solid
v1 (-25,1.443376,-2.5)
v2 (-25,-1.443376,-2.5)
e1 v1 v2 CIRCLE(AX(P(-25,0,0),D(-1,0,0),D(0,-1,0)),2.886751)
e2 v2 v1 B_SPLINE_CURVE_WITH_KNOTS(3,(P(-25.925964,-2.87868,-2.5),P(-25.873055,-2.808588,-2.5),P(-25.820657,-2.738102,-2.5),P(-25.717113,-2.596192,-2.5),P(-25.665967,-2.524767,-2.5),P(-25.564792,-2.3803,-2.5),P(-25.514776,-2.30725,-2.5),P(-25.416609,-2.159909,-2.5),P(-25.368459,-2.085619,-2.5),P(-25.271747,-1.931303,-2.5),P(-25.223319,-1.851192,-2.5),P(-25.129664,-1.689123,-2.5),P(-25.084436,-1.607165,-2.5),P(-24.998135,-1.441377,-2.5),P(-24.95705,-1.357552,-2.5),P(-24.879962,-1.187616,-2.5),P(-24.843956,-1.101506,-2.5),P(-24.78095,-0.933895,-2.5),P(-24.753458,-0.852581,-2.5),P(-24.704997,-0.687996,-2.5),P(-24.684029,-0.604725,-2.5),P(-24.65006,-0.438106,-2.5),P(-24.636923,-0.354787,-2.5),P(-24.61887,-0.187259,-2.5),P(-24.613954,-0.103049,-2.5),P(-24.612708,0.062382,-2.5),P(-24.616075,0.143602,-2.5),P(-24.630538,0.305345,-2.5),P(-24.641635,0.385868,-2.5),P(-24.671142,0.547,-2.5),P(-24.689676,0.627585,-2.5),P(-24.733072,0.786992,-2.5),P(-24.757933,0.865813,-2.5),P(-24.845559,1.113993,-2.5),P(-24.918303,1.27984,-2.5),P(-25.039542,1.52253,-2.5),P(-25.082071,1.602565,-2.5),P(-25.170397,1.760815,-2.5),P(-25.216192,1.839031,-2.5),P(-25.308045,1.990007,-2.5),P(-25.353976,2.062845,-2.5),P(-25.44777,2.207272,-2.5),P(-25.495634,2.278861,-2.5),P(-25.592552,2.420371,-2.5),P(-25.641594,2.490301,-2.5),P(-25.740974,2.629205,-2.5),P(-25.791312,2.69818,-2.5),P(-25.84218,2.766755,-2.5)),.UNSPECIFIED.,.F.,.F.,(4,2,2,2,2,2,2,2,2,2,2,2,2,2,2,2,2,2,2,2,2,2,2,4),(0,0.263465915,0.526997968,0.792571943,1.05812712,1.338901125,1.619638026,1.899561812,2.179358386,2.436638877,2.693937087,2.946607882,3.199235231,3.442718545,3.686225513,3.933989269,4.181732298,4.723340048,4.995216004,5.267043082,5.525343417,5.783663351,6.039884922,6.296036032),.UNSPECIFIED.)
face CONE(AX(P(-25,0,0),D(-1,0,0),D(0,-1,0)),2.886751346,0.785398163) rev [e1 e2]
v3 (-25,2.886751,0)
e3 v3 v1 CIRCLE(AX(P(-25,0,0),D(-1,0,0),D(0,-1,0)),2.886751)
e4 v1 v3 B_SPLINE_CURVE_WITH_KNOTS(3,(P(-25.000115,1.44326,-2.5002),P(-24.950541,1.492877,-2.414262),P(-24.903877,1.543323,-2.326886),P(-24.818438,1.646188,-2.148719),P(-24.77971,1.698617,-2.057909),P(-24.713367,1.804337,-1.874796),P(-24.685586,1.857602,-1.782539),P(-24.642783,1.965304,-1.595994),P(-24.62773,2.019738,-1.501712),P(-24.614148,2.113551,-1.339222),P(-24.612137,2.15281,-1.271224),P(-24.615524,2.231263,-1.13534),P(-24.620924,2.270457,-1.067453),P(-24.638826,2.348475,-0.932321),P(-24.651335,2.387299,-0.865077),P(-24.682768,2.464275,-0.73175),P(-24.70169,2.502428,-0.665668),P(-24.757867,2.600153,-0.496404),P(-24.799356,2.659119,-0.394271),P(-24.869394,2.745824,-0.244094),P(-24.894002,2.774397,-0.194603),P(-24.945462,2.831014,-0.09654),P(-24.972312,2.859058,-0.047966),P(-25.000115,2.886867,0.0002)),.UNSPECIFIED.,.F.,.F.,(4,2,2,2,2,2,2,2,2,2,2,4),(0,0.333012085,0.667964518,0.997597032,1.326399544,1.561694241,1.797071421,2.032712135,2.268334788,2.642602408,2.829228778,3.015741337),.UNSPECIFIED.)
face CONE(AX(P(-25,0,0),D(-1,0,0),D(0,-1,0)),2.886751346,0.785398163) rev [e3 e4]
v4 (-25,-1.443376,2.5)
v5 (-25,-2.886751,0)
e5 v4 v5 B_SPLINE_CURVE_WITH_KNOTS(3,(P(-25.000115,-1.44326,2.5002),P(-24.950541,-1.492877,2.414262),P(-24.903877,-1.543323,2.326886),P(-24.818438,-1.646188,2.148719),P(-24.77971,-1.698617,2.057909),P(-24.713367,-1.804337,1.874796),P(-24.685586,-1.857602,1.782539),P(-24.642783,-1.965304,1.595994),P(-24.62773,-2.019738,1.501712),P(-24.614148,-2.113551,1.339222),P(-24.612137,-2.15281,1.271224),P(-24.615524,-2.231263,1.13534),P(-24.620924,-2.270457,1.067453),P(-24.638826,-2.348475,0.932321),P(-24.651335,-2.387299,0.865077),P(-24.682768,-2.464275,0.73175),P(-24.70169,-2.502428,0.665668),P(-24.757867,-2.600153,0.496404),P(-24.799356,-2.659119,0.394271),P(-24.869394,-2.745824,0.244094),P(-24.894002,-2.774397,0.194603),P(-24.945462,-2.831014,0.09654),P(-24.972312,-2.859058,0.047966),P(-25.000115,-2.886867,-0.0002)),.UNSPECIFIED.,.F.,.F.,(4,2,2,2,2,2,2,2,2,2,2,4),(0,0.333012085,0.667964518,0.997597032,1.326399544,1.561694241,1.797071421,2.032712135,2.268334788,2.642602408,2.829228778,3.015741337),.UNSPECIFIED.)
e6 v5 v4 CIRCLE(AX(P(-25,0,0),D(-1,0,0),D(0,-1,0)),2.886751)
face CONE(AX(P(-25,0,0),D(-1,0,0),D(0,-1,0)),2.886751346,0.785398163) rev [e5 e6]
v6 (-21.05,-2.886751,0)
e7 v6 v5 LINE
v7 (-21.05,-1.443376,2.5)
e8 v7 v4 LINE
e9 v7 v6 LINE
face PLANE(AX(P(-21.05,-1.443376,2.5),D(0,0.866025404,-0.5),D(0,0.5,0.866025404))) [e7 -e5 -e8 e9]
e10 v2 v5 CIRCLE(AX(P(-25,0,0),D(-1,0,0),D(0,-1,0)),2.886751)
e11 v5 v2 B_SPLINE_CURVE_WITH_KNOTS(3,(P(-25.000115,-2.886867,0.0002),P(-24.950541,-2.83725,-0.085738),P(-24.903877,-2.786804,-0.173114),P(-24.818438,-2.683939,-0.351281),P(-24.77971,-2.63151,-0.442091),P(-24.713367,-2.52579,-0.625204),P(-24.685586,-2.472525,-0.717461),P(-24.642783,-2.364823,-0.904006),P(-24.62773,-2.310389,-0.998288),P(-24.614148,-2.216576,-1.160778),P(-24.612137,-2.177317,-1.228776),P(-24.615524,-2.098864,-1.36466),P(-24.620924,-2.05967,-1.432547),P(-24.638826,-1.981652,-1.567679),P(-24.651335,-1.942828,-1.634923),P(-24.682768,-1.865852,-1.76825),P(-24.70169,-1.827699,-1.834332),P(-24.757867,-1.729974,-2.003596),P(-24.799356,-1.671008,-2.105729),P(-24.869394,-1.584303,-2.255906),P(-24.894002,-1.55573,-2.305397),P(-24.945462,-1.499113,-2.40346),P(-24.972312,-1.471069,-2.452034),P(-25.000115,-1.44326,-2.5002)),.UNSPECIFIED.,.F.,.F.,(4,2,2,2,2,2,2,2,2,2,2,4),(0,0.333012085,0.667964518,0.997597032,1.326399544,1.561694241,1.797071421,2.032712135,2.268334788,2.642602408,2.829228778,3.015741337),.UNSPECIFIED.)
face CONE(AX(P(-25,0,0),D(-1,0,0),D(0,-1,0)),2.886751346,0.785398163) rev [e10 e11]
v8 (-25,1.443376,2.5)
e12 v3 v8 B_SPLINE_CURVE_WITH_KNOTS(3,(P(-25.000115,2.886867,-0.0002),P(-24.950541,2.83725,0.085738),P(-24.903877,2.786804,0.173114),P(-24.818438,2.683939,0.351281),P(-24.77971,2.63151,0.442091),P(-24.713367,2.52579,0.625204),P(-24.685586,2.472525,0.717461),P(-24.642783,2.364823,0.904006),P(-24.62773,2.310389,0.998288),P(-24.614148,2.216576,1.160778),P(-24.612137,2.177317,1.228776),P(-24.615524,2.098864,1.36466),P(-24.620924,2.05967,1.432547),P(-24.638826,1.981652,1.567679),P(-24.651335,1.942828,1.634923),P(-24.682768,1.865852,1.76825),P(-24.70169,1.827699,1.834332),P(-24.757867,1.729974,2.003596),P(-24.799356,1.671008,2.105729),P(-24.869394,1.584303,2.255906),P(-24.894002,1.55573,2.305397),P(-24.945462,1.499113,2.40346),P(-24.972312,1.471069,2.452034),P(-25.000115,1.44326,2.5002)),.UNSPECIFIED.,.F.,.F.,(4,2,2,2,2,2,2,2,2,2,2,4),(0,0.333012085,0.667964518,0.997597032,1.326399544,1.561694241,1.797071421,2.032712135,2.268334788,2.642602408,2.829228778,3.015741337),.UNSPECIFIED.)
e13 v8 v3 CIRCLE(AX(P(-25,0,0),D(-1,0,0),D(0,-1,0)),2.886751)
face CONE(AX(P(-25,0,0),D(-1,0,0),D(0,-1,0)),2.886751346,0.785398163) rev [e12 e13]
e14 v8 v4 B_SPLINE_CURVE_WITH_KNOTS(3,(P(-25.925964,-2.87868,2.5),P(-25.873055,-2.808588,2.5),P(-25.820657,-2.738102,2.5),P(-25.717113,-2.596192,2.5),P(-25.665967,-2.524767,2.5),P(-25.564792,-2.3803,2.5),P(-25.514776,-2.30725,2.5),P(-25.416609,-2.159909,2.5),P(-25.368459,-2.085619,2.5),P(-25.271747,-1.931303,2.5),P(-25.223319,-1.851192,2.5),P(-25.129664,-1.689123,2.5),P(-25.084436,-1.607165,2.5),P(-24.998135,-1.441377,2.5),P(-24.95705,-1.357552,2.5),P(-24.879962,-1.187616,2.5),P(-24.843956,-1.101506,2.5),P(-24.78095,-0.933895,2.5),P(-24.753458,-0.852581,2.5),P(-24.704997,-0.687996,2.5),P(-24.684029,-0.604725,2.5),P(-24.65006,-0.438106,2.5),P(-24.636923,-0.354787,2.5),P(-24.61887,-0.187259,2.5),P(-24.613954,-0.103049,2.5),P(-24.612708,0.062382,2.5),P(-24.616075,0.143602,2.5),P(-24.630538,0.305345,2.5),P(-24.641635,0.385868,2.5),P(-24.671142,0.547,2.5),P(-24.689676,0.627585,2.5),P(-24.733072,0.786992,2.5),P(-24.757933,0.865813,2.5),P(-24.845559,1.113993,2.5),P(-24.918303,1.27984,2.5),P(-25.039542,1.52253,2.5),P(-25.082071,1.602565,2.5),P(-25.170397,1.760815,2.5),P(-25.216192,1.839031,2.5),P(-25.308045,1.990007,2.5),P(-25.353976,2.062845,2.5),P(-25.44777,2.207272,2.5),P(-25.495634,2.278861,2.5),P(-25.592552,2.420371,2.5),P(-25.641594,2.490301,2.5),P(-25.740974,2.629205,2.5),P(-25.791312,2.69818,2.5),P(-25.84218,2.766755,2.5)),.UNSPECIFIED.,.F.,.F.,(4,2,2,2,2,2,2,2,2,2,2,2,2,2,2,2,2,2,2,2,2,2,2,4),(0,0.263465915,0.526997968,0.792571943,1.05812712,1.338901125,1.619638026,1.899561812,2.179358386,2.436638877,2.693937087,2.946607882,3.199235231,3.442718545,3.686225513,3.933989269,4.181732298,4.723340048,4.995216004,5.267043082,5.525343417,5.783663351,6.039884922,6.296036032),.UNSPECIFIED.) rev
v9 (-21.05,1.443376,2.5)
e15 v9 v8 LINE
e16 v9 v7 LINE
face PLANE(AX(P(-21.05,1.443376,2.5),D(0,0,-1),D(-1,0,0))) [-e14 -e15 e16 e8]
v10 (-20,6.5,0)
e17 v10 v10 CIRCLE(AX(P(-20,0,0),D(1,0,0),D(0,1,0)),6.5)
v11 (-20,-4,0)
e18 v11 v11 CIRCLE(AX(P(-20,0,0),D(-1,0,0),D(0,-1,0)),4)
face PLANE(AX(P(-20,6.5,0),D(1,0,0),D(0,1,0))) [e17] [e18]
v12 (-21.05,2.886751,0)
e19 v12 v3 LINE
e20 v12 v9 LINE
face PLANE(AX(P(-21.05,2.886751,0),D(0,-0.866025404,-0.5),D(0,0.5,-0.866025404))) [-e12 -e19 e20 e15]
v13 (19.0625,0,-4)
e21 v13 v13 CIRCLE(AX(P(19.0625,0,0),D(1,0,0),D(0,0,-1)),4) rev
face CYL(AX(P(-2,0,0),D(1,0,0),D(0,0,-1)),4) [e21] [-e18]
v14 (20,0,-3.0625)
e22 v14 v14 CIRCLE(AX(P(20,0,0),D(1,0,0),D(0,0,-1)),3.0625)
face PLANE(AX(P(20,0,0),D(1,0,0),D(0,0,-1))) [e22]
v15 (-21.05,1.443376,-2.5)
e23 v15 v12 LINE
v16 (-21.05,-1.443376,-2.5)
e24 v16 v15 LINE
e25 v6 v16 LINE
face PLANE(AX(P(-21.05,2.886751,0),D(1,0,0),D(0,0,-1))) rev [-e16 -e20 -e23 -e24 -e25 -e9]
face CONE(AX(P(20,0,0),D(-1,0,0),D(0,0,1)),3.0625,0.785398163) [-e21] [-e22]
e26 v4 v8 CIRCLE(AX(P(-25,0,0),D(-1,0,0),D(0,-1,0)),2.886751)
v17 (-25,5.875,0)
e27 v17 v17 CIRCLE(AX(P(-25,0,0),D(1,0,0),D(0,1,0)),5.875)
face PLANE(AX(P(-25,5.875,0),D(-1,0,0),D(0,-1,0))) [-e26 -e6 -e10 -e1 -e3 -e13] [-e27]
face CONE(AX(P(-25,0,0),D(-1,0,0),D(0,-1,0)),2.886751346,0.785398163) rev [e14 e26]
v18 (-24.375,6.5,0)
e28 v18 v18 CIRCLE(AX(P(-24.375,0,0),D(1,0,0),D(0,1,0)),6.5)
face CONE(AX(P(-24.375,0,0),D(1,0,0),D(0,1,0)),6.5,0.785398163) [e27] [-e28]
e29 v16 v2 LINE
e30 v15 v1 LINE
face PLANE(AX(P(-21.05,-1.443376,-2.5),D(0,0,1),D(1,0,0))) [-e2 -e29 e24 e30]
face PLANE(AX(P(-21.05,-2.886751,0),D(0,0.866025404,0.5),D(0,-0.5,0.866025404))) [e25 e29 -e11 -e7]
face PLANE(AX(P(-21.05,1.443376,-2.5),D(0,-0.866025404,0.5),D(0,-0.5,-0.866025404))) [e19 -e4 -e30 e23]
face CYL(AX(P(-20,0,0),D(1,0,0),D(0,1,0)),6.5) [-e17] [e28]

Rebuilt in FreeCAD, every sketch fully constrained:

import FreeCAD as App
import Part
import Sketcher
from FreeCAD import Vector
Q = App.Units.Quantity


def edges_at(feature, points):
    """Names of the edges that pass closest to the given points."""
    edges = feature.Shape.Edges
    near = lambda p: min(range(len(edges)), key=lambda i: edges[i].distToShape(Part.Vertex(*p))[0])
    return sorted({f"Edge{near(p) + 1}" for p in points})


def add_polygon(sketch, points):
    """Adds a closed chain of lines whose ends are joined by coincident constraints."""
    first, n = sketch.GeometryCount, len(points)
    for a, b in zip(points, points[1:] + points[:1]):
        sketch.addGeometry(Part.LineSegment(App.Vector(*a, 0), App.Vector(*b, 0)), False)
    for i in range(n):
        sketch.addConstraint(Sketcher.Constraint("Coincident", first + i, 2, first + (i + 1) % n, 1))

doc = App.newDocument("Part")
params = doc.addObject("Spreadsheet::Sheet", "Params")
for row, (alias, value) in enumerate([
    ("sketch1_diameter", "8 mm"),
    ("pad1_length", "22 mm"),
    ("chamfer_size", "0.9375 mm"),
    ("sketch2_width", "18 mm"),
    ("sketch2_height", "4 mm"),
    ("revolution_angle", "360 deg"),
    ("sketch3_width", "5 mm"),
    ("sketch3_height", "6.5 mm"),
    ("revolution2_angle", "360 deg"),
    ("pocket1_length", "3.95 mm"),
    ("groove_angle", "360 deg"),
], start=1):
    params.set(f"A{row}", alias)
    params.set(f"B{row}", "=" + value)
    params.setAlias(f"B{row}", alias)

body = doc.addObject("PartDesign::Body", "Body")

# Sketch on YZ plane
sketch1 = doc.addObject("Sketcher::SketchObject", "Sketch")
body.addObject(sketch1)
sketch1.AttachmentSupport = (doc.YZ_Plane, [""])
sketch1.MapMode = "FlatFace"
sketch1.AttachmentOffset = App.Placement(Vector(0, 0, 20), App.Rotation())
sketch1.addGeometry(Part.Circle(Vector(0, 0, 0), Vector(0, 0, 1), 4), False)
sketch1.addConstraint([
    Sketcher.Constraint("Coincident", 0, 3, -1, 1),
    Sketcher.Constraint("Diameter", 0, Q("8 mm")),
])
sketch1.setExpression("Constraints[1]", "Params.sketch1_diameter")
pad1 = doc.addObject("PartDesign::Pad", "Pad")
body.addObject(pad1)
pad1.Profile = sketch1
pad1.setExpression("Length", "Params.pad1_length")
pad1.Reversed = True
doc.recompute()

chamfer = doc.addObject("PartDesign::Chamfer", "Chamfer")
body.addObject(chamfer)
chamfer.Base = (pad1, edges_at(pad1, [(20, 0, 4)]))
chamfer.setExpression("Size", "Params.chamfer_size")

# Sketch on XY plane
sketch2 = doc.addObject("Sketcher::SketchObject", "Sketch001")
body.addObject(sketch2)
sketch2.AttachmentSupport = (doc.XY_Plane, [""])
sketch2.MapMode = "FlatFace"
add_polygon(sketch2, [(0.3, 0), (-2, 4), (-20, 4), (-20, 0)])  # lines 0-3
sketch2.addConstraint([
    Sketcher.Constraint("Horizontal", 1),
    Sketcher.Constraint("Vertical", 2),
    Sketcher.Constraint("Horizontal", 3),
    Sketcher.Constraint("PointOnObject", 2, 2, -1),
    Sketcher.Constraint("DistanceX", 1, 2, 1, 1, Q("18 mm")),
    Sketcher.Constraint("DistanceY", 2, 2, 2, 1, Q("4 mm")),
    Sketcher.Constraint("Angle", 0, Q("120 deg")),
    Sketcher.Constraint("DistanceX", 0, 2, -1, 1, Q("2 mm")),
])
sketch2.setExpression("Constraints[8]", "Params.sketch2_width")
sketch2.setExpression("Constraints[9]", "Params.sketch2_height")
revolution = doc.addObject("PartDesign::Revolution", "Revolution")
body.addObject(revolution)
revolution.Profile = sketch2
revolution.ReferenceAxis = (sketch2, ["H_Axis"])
revolution.setExpression("Angle", "Params.revolution_angle")

# Sketch on XY plane
sketch3 = doc.addObject("Sketcher::SketchObject", "Sketch002")
body.addObject(sketch3)
sketch3.AttachmentSupport = (doc.XY_Plane, [""])
sketch3.MapMode = "FlatFace"
add_polygon(sketch3, [(-24.4, 6.5), (-25, 5.9), (-25, 0), (-20, 0), (-20, 6.5)])  # lines 0-4
sketch3.addConstraint([
    Sketcher.Constraint("Vertical", 1),
    Sketcher.Constraint("Horizontal", 2),
    Sketcher.Constraint("Vertical", 3),
    Sketcher.Constraint("Horizontal", 4),
    Sketcher.Constraint("PointOnObject", 1, 2, -1),
    Sketcher.Constraint("DistanceX", 2, 1, 2, 2, Q("5 mm")),
    Sketcher.Constraint("Angle", 0, Q("-135 deg")),
    Sketcher.Constraint("DistanceY", 3, 1, 3, 2, Q("6.5 mm")),
    Sketcher.Constraint("DistanceX", 0, 2, -1, 1, Q("25 mm")),
    Sketcher.Constraint("DistanceX", 4, 2, 4, 1, Q("4.375 mm")),
])
sketch3.setExpression("Constraints[10]", "Params.sketch3_width")
sketch3.setExpression("Constraints[12]", "Params.sketch3_height")
revolution2 = doc.addObject("PartDesign::Revolution", "Revolution001")
body.addObject(revolution2)
revolution2.Profile = sketch3
revolution2.ReferenceAxis = (sketch3, ["H_Axis"])
revolution2.setExpression("Angle", "Params.revolution2_angle")

# Sketch on YZ plane
sketch4 = doc.addObject("Sketcher::SketchObject", "Sketch003")
body.addObject(sketch4)
sketch4.AttachmentSupport = (doc.YZ_Plane, [""])
sketch4.MapMode = "FlatFace"
sketch4.AttachmentOffset = App.Placement(Vector(0, 0, -25), App.Rotation())
add_polygon(sketch4, [(2.9, 0), (1.4, 2.5), (-1.4, 2.5), (-2.9, 0), (-1.4, -2.5), (1.4, -2.5)])  # lines 0-5
sketch4.addConstraint([
    Sketcher.Constraint("Horizontal", 1),
    Sketcher.Constraint("Horizontal", 4),
    Sketcher.Constraint("Symmetric", 0, 2, 3, 2, -1, 1),
    Sketcher.Constraint("Symmetric", 2, 2, 5, 2, -1, 1),
    Sketcher.Constraint("PointOnObject", 2, 2, -1),
    Sketcher.Constraint("Parallel", 2, 5),
    Sketcher.Constraint("Vertical", 1, 2, 3, 2),
    Sketcher.Constraint("Angle", 0, Q("120 deg")),
    Sketcher.Constraint("DistanceY", 3, 2, 1, 2, Q("5 mm")),
    Sketcher.Constraint("DistanceX", 1, 2, 1, 1, Q("2.886751 mm")),
])
pocket1 = doc.addObject("PartDesign::Pocket", "Pocket")
body.addObject(pocket1)
pocket1.Profile = sketch4
pocket1.setExpression("Length", "Params.pocket1_length")
pocket1.Reversed = True

# Sketch on XZ plane
sketch5 = doc.addObject("Sketcher::SketchObject", "Sketch004")
body.addObject(sketch5)
sketch5.AttachmentSupport = (doc.XZ_Plane, [""])
sketch5.MapMode = "FlatFace"
add_polygon(sketch5, [(-25, 0), (-25, 2.9), (-22.1, 0)])  # lines 0-2
sketch5.addConstraint([
    Sketcher.Constraint("Vertical", 0),
    Sketcher.Constraint("Horizontal", 2),
    Sketcher.Constraint("PointOnObject", 1, 2, -1),
    Sketcher.Constraint("Equal", 2, 0),
    Sketcher.Constraint("DistanceX", 0, 2, -1, 1, Q("25 mm")),
    Sketcher.Constraint("DistanceX", 2, 2, 2, 1, Q("2.886751 mm")),
])
groove = doc.addObject("PartDesign::Groove", "Groove")
body.addObject(groove)
groove.Profile = sketch5
groove.ReferenceAxis = (sketch5, ["H_Axis"])
groove.setExpression("Angle", "Params.groove_angle")

doc.recompute()
